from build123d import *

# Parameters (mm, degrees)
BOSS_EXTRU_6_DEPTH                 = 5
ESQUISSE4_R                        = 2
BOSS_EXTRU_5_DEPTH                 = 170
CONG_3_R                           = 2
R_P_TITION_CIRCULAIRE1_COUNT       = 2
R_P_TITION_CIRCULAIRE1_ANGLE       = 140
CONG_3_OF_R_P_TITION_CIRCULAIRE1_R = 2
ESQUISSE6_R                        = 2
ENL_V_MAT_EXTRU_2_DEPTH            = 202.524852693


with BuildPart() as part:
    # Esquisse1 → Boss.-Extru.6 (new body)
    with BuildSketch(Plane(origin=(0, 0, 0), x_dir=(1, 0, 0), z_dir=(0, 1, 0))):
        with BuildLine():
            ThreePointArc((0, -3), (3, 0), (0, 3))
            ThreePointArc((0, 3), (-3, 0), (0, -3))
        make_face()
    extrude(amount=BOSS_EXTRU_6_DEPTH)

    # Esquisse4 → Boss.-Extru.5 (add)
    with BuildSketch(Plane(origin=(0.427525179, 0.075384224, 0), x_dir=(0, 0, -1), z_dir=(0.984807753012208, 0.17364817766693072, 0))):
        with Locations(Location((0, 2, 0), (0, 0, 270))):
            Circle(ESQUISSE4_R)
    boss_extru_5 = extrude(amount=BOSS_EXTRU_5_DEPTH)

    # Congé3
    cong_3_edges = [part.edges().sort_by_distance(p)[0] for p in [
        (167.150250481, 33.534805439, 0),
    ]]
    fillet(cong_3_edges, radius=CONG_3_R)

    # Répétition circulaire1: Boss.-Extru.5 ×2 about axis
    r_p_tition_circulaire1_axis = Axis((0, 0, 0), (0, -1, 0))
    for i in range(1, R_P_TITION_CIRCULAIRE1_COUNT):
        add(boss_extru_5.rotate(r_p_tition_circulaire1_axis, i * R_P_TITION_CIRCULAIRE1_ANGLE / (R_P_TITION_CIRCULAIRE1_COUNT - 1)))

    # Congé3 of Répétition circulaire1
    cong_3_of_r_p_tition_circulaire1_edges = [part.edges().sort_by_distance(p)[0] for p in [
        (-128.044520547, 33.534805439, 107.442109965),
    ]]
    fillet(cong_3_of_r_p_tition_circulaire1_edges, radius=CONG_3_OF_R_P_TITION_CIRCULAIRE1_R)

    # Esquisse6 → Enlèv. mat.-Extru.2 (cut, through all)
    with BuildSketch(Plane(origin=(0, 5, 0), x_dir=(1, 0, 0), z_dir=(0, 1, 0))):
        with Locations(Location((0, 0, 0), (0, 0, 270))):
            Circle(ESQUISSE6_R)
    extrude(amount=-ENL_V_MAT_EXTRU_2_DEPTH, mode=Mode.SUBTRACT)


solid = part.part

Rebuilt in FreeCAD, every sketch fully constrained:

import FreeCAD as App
import Part
import Sketcher
from FreeCAD import Vector


def edges_at(feature, points):
    """Names of the edges that pass closest to the given points."""
    edges = feature.Shape.Edges
    near = lambda p: min(range(len(edges)), key=lambda i: edges[i].distToShape(Part.Vertex(*p))[0])
    return sorted({f"Edge{near(p) + 1}" for p in points})

doc = App.newDocument("Part")
body = doc.addObject("PartDesign::Body", "Body")

# Sketch on XZ plane
sketch1 = body.newObject("Sketcher::SketchObject", "Sketch")
sketch1.AttachmentSupport = (doc.getObject("XZ_Plane"), [""])
sketch1.MapMode = "FlatFace"
sketch1.addGeometry(Part.Circle(Vector(0, 0, 0), Vector(0, 0, 1), 3), False)
sketch1.addConstraint(Sketcher.Constraint("Coincident", 0, 3, -1, 1))
sketch1.addConstraint(Sketcher.Constraint("Diameter", 0, 6.0))
pad1 = body.newObject("PartDesign::Pad", "Pad")
pad1.Profile = sketch1
pad1.Length = 5
pad1.Reversed = True

# Sketch on an angled plane
sketch2 = body.newObject("Sketcher::SketchObject", "Sketch001")
sketch2.Placement = App.Placement(Vector(0.427525, 0.075384, 0), App.Rotation(Vector(0, 0, -1), Vector(-0.173648178, 0.984807753, 0), Vector(0.984807753, 0.173648178, 0), "ZXY"))
sketch2.addGeometry(Part.Circle(Vector(0, 2, 0), Vector(0, 0, 1), 2), False)
sketch2.addConstraint(Sketcher.Constraint("PointOnObject", 0, 3, -2))
sketch2.addConstraint(Sketcher.Constraint("Diameter", 0, 4.0))
sketch2.addConstraint(Sketcher.Constraint("DistanceY", -1, 1, 0, 3, 2.0))
pad2 = body.newObject("PartDesign::Pad", "Pad001")
pad2.Profile = sketch2
pad2.Length = 170
doc.recompute()

fillet = body.newObject("PartDesign::Fillet", "Fillet")
fillet.Base = (pad2, edges_at(pad2, [(167.15, 33.535, 0)]))
fillet.Radius = 2
doc.recompute()

polarpattern = body.newObject("PartDesign::PolarPattern", "PolarPattern")
polarpattern.Originals = [pad2]
polarpattern.Axis = (doc.getObject("Y_Axis"), [""])
polarpattern.Angle = 140
polarpattern.Occurrences = 2
polarpattern.Reversed = True
body.Tip = polarpattern
doc.recompute()

fillet2 = body.newObject("PartDesign::Fillet", "Fillet001")
fillet2.Base = (polarpattern, edges_at(polarpattern, [(-128.045, 33.535, 107.442)]))
fillet2.Radius = 2

# Sketch on XZ plane
sketch3 = body.newObject("Sketcher::SketchObject", "Sketch002")
sketch3.AttachmentSupport = (doc.getObject("XZ_Plane"), [""])
sketch3.MapMode = "FlatFace"
sketch3.AttachmentOffset = App.Placement(Vector(0, 0, -5), App.Rotation())
sketch3.addGeometry(Part.Circle(Vector(0, 0, 0), Vector(0, 0, 1), 2), False)
sketch3.addConstraint(Sketcher.Constraint("Coincident", 0, 3, -1, 1))
sketch3.addConstraint(Sketcher.Constraint("Diameter", 0, 4.0))
pocket1 = body.newObject("PartDesign::Pocket", "Pocket")
pocket1.Profile = sketch3
pocket1.Type = "ThroughAll"
pocket1.Reversed = True

doc.recompute()
